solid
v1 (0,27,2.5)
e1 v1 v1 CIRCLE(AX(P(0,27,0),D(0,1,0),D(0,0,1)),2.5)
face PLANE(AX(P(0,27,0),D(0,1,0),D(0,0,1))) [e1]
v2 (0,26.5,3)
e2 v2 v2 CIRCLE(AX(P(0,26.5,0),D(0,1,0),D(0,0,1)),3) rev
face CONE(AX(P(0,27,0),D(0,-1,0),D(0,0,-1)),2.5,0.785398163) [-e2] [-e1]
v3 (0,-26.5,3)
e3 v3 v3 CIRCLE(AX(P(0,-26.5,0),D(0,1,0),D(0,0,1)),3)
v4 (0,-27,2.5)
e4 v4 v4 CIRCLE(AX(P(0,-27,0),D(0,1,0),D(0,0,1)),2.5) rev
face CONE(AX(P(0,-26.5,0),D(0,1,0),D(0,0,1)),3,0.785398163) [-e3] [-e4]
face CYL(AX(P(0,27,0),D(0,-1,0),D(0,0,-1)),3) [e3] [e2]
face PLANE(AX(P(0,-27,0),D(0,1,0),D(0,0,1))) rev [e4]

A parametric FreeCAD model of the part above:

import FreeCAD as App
import Part
import Sketcher


def edges_at(feature, points):
    """Names of the edges that pass closest to the given points."""
    edges = feature.Shape.Edges
    near = lambda p: min(range(len(edges)), key=lambda i: edges[i].distToShape(Part.Vertex(*p))[0])
    return sorted({f"Edge{near(p) + 1}" for p in points})

doc = App.newDocument("Part")
body = doc.addObject("PartDesign::Body", "Body")

# Sketch on XZ plane
sketch1 = body.newObject("Sketcher::SketchObject", "Sketch")
sketch1.AttachmentSupport = (doc.getObject("XZ_Plane"), [""])
sketch1.MapMode = "FlatFace"
sketch1.addGeometry(Part.Circle(App.Vector(0, 0, 0), App.Vector(0, 0, 1), 3), False)
sketch1.addConstraint(Sketcher.Constraint("Coincident", 0, 3, -1, 1))
sketch1.addConstraint(Sketcher.Constraint("Diameter", 0, 6.0))
pad1 = body.newObject("PartDesign::Pad", "Pad")
pad1.Profile = sketch1
pad1.Length = 54
pad1.Midplane = True
doc.recompute()

chamfer = body.newObject("PartDesign::Chamfer", "Chamfer")
chamfer.Base = (pad1, edges_at(pad1, [(-3, -27, 0), (-3, 27, 0)]))
chamfer.Size = 0.5

doc.recompute()
